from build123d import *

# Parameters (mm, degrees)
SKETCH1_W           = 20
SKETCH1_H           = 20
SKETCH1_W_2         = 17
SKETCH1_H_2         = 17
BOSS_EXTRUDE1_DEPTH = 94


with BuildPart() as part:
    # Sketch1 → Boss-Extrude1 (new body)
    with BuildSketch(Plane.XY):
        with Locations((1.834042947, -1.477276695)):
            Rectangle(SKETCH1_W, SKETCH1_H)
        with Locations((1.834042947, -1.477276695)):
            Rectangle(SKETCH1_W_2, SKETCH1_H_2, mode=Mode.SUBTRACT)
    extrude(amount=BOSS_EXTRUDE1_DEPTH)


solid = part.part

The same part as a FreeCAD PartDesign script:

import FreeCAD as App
import Part
import Sketcher

V = App.Vector


def add_polygon(sketch, points):
    """Adds a closed chain of lines whose ends are joined by coincident constraints."""
    first, n = sketch.GeometryCount, len(points)
    for a, b in zip(points, points[1:] + points[:1]):
        sketch.addGeometry(Part.LineSegment(App.Vector(*a, 0), App.Vector(*b, 0)), False)
    for i in range(n):
        sketch.addConstraint(Sketcher.Constraint("Coincident", first + i, 2, first + (i + 1) % n, 1))

doc = App.newDocument("Part")
body = doc.addObject("PartDesign::Body", "Body")

sketch1 = doc.addObject("Sketcher::SketchObject", "Sketch")
body.addObject(sketch1)
sketch1.AttachmentSupport = (doc.XY_Plane, [""])
sketch1.MapMode = "FlatFace"
add_polygon(sketch1, [(-8.165957, 8.522723), (-8.165957, -11.477277), (11.834043, -11.477277), (11.834043, 8.522723)])
add_polygon(sketch1, [(10.334043, -9.977277), (-6.665957, -9.977277), (-6.665957, 7.022723), (10.334043, 7.022723)])
sketch1.addConstraint([
    Sketcher.Constraint("Vertical", 0),
    Sketcher.Constraint("Horizontal", 1),
    Sketcher.Constraint("Vertical", 2),
    Sketcher.Constraint("Horizontal", 3),
    Sketcher.Constraint("Horizontal", 4),
    Sketcher.Constraint("Vertical", 5),
    Sketcher.Constraint("Horizontal", 6),
    Sketcher.Constraint("Vertical", 7),
    Sketcher.Constraint("Equal", 3, 0),
    Sketcher.Constraint("Equal", 6, 5),
    Sketcher.Constraint("DistanceX", 1, 1, 1, 2, 20.0),
    Sketcher.Constraint("DistanceX", 4, 2, 4, 1, 17.0),
    Sketcher.Constraint("DistanceX", 0, 2, 4, 2, 1.5),
    Sketcher.Constraint("DistanceY", 0, 2, 4, 2, 1.5),
    Sketcher.Constraint("DistanceX", 0, 2, -1, 1, 8.165957),
    Sketcher.Constraint("DistanceY", 0, 2, -1, 1, 11.477277),
])
pad1 = doc.addObject("PartDesign::Pad", "Pad")
body.addObject(pad1)
pad1.Profile = sketch1
pad1.Length = 94

doc.recompute()
